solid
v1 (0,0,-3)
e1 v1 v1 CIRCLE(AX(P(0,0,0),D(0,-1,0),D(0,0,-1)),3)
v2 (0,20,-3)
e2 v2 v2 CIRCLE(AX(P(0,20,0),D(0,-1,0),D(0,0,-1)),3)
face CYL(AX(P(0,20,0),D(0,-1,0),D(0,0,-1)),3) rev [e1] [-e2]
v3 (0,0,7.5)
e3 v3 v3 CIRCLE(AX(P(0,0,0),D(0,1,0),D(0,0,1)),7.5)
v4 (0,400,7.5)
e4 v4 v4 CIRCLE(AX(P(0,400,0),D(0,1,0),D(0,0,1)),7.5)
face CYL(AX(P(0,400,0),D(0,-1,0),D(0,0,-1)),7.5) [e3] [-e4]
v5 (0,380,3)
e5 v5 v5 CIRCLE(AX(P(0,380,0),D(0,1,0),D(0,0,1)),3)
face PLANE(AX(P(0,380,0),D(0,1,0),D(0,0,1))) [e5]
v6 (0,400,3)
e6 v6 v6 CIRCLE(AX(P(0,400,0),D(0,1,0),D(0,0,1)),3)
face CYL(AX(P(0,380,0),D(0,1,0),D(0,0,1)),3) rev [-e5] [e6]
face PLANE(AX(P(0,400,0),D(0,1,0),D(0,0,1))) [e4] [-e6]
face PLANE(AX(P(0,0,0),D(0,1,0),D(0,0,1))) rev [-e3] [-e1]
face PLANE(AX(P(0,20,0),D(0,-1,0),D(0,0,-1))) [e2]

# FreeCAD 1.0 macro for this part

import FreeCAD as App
import Part
import Sketcher
from FreeCAD import Vector
Q = App.Units.Quantity

doc = App.newDocument("Part")
body = doc.addObject("PartDesign::Body", "Body")

# Sketch on XZ plane
sketch1 = doc.addObject("Sketcher::SketchObject", "Sketch")
body.addObject(sketch1)
sketch1.AttachmentSupport = (doc.XZ_Plane, [""])
sketch1.MapMode = "FlatFace"
sketch1.addGeometry(Part.Circle(Vector(0, 0, 0), Vector(0, 0, 1), 8), False)
sketch1.addConstraint([
    Sketcher.Constraint("Coincident", 0, 3, -1, 1),
    Sketcher.Constraint("Diameter", 0, Q("15 mm")),
])
pad1 = doc.addObject("PartDesign::Pad", "Pad")
body.addObject(pad1)
pad1.Profile = sketch1
pad1.Length = 400
pad1.Reversed = True

# Sketch on XZ plane
sketch2 = doc.addObject("Sketcher::SketchObject", "Sketch001")
body.addObject(sketch2)
sketch2.AttachmentSupport = (doc.XZ_Plane, [""])
sketch2.MapMode = "FlatFace"
sketch2.AttachmentOffset = App.Placement(Vector(0, 0, -400), App.Rotation())
sketch2.addGeometry(Part.Circle(Vector(0, 0, 0), Vector(0, 0, 1), 3), False)
sketch2.addConstraint([
    Sketcher.Constraint("Coincident", 0, 3, -1, 1),
    Sketcher.Constraint("Diameter", 0, Q("6 mm")),
])
pocket1 = doc.addObject("PartDesign::Pocket", "Pocket")
body.addObject(pocket1)
pocket1.Profile = sketch2
pocket1.Length = 20
pocket1.Reversed = True

# Sketch on XZ plane
sketch3 = doc.addObject("Sketcher::SketchObject", "Sketch002")
body.addObject(sketch3)
sketch3.AttachmentSupport = (doc.XZ_Plane, [""])
sketch3.MapMode = "FlatFace"
sketch3.AttachmentOffset = App.Placement(Vector(0, 0, -20), App.Rotation())
sketch3.addGeometry(Part.Circle(Vector(0, 0, 0), Vector(0, 0, 1), 3), False)
sketch3.addConstraint([
    Sketcher.Constraint("Coincident", 0, 3, -1, 1),
    Sketcher.Constraint("Diameter", 0, Q("6 mm")),
])
pocket2 = doc.addObject("PartDesign::Pocket", "Pocket001")
body.addObject(pocket2)
pocket2.Profile = sketch3
pocket2.Length = 20
pocket2.Reversed = True

doc.recompute()
